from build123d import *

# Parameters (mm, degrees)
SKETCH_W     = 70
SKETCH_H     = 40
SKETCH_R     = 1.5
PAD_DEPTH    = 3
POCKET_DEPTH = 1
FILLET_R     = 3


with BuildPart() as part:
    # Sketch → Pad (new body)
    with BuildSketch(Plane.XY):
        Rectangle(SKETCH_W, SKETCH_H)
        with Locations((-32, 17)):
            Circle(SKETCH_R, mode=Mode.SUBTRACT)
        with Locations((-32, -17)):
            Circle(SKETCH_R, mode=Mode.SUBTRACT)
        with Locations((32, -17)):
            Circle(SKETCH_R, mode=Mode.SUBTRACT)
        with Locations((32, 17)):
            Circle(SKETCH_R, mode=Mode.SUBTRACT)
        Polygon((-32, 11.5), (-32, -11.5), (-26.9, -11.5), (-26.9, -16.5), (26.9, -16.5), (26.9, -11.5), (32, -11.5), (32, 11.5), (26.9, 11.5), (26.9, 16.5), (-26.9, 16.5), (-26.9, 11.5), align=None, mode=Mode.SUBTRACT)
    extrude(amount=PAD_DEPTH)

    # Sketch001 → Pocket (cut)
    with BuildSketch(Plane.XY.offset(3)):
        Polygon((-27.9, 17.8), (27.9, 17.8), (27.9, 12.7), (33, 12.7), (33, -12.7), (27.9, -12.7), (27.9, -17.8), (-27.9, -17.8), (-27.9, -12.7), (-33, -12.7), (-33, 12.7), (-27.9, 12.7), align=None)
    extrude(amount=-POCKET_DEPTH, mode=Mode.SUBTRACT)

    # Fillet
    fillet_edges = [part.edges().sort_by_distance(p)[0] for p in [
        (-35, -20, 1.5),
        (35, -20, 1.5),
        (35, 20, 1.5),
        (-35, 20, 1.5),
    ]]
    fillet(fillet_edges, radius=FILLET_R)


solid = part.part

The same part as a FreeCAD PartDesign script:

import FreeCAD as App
import Part
import Sketcher
from FreeCAD import Vector
Q = App.Units.Quantity


def edges_at(feature, points):
    """Names of the edges that pass closest to the given points."""
    edges = feature.Shape.Edges
    near = lambda p: min(range(len(edges)), key=lambda i: edges[i].distToShape(Part.Vertex(*p))[0])
    return sorted({f"Edge{near(p) + 1}" for p in points})


def add_polygon(sketch, points):
    """Adds a closed chain of lines whose ends are joined by coincident constraints."""
    first, n = sketch.GeometryCount, len(points)
    for a, b in zip(points, points[1:] + points[:1]):
        sketch.addGeometry(Part.LineSegment(App.Vector(*a, 0), App.Vector(*b, 0)), False)
    for i in range(n):
        sketch.addConstraint(Sketcher.Constraint("Coincident", first + i, 2, first + (i + 1) % n, 1))

doc = App.newDocument("Part")
body = doc.addObject("PartDesign::Body", "Body")

sketch1 = doc.addObject("Sketcher::SketchObject", "Sketch")
body.addObject(sketch1)
sketch1.AttachmentSupport = (doc.XY_Plane, [""])
sketch1.MapMode = "FlatFace"
add_polygon(sketch1, [(-35, 20), (-35, -20), (35, -20), (35, 20)])
sketch1.addGeometry(Part.Circle(Vector(-32, -17, 0), Vector(0, 0, 1), 1.5), False)
sketch1.addGeometry(Part.Circle(Vector(32, -17, 0), Vector(0, 0, 1), 1.5), False)
sketch1.addGeometry(Part.Circle(Vector(-32, 17, 0), Vector(0, 0, 1), 1.5), False)
add_polygon(sketch1, [(-32, -11.5), (-32, 11.5), (-26.9, 11.5), (-26.9, 16.5), (26.9, 16.5), (26.9, 11.5), (32, 11.5), (32, -11.5), (26.9, -11.5), (26.9, -16.5), (-26.9, -16.5), (-26.9, -11.5)])
sketch1.addGeometry(Part.Circle(Vector(32, 17, 0), Vector(0, 0, 1), 1.5), False)
sketch1.addConstraint([
    Sketcher.Constraint("Vertical", 0),
    Sketcher.Constraint("Horizontal", 1),
    Sketcher.Constraint("Vertical", 2),
    Sketcher.Constraint("Horizontal", 3),
    Sketcher.Constraint("Vertical", 7),
    Sketcher.Constraint("Horizontal", 8),
    Sketcher.Constraint("Vertical", 9),
    Sketcher.Constraint("Horizontal", 10),
    Sketcher.Constraint("Vertical", 11),
    Sketcher.Constraint("Horizontal", 12),
    Sketcher.Constraint("Vertical", 13),
    Sketcher.Constraint("Horizontal", 14),
    Sketcher.Constraint("Vertical", 15),
    Sketcher.Constraint("Horizontal", 16),
    Sketcher.Constraint("Vertical", 17),
    Sketcher.Constraint("Horizontal", 18),
    Sketcher.Constraint("Equal", 4, 5),
    Sketcher.Constraint("Equal", 5, 6),
    Sketcher.Constraint("Equal", 6, 19),
    Sketcher.Constraint("Symmetric", 5, 3, 6, 3, -1, 1),
    Sketcher.Constraint("Symmetric", 4, 3, 19, 3, -1, 1),
    Sketcher.Constraint("Symmetric", 0, 2, 2, 2, -1, 1),
    Sketcher.Constraint("Symmetric", 7, 2, 13, 2, -1, 1),
    Sketcher.Constraint("Symmetric", 9, 2, 15, 2, -1, 1),
    Sketcher.Constraint("Symmetric", 11, 2, 17, 2, -1, 1),
    Sketcher.Constraint("Symmetric", 4, 3, 5, 3, -2),
    Sketcher.Constraint("Symmetric", 8, 2, 11, 2, -2),
    Sketcher.Constraint("Vertical", 6, 3, 7, 2),
    Sketcher.Constraint("Diameter", 4, Q("3 mm")),
    Sketcher.Constraint("DistanceX", 1, 1, 1, 2, Q("70 mm")),
    Sketcher.Constraint("DistanceY", 0, 2, 0, 1, Q("40 mm")),
    Sketcher.Constraint("DistanceY", 7, 1, 7, 2, Q("23 mm")),
    Sketcher.Constraint("DistanceY", 9, 1, 9, 2, Q("5 mm")),
    Sketcher.Constraint("DistanceX", 8, 1, 8, 2, Q("5.1 mm")),
    Sketcher.Constraint("DistanceX", 10, 1, 10, 2, Q("53.8 mm")),
    Sketcher.Constraint("DistanceY", 4, 3, -1, 1, Q("17 mm")),
])
pad1 = doc.addObject("PartDesign::Pad", "Pad")
body.addObject(pad1)
pad1.Profile = sketch1
pad1.Length = 3

sketch2 = doc.addObject("Sketcher::SketchObject", "Sketch001")
body.addObject(sketch2)
sketch2.AttachmentSupport = (doc.XY_Plane, [""])
sketch2.MapMode = "FlatFace"
sketch2.AttachmentOffset = App.Placement(Vector(0, 0, 3), App.Rotation())
add_polygon(sketch2, [(28, 18), (-28, 18), (-28, 13), (-33, 13), (-33, -13), (-28, -13), (-28, -18), (28, -18), (28, -13), (33, -13), (33, 13), (28, 13)])
sketch2.addConstraint([
    Sketcher.Constraint("Horizontal", 0),
    Sketcher.Constraint("Vertical", 1),
    Sketcher.Constraint("Horizontal", 2),
    Sketcher.Constraint("Vertical", 3),
    Sketcher.Constraint("Horizontal", 4),
    Sketcher.Constraint("Vertical", 5),
    Sketcher.Constraint("Horizontal", 6),
    Sketcher.Constraint("Vertical", 7),
    Sketcher.Constraint("Horizontal", 8),
    Sketcher.Constraint("Vertical", 9),
    Sketcher.Constraint("Horizontal", 10),
    Sketcher.Constraint("Vertical", 11),
    Sketcher.Constraint("Symmetric", 0, 2, 6, 2, -1, 1),
    Sketcher.Constraint("Symmetric", 2, 2, 8, 2, -1, 1),
    Sketcher.Constraint("Symmetric", 4, 2, 10, 2, -1, 1),
    Sketcher.Constraint("Symmetric", 4, 2, 7, 2, -2),
    Sketcher.Constraint("Equal", 10, 1),
    Sketcher.Constraint("DistanceX", 0, 2, 0, 1, Q("55.8 mm")),
    Sketcher.Constraint("DistanceX", 2, 2, 2, 1, Q("5.1 mm")),
    Sketcher.Constraint("DistanceY", 3, 2, 3, 1, Q("25.4 mm")),
])
pocket1 = doc.addObject("PartDesign::Pocket", "Pocket")
body.addObject(pocket1)
pocket1.Profile = sketch2
pocket1.Length = 1
doc.recompute()

fillet = doc.addObject("PartDesign::Fillet", "Fillet")
body.addObject(fillet)
fillet.Base = (pocket1, edges_at(pocket1, [
    (-35, -20, 1.5),
    (35, -20, 1.5),
    (35, 20, 1.5),
    (-35, 20, 1.5),
]))
fillet.Radius = 3

doc.recompute()
